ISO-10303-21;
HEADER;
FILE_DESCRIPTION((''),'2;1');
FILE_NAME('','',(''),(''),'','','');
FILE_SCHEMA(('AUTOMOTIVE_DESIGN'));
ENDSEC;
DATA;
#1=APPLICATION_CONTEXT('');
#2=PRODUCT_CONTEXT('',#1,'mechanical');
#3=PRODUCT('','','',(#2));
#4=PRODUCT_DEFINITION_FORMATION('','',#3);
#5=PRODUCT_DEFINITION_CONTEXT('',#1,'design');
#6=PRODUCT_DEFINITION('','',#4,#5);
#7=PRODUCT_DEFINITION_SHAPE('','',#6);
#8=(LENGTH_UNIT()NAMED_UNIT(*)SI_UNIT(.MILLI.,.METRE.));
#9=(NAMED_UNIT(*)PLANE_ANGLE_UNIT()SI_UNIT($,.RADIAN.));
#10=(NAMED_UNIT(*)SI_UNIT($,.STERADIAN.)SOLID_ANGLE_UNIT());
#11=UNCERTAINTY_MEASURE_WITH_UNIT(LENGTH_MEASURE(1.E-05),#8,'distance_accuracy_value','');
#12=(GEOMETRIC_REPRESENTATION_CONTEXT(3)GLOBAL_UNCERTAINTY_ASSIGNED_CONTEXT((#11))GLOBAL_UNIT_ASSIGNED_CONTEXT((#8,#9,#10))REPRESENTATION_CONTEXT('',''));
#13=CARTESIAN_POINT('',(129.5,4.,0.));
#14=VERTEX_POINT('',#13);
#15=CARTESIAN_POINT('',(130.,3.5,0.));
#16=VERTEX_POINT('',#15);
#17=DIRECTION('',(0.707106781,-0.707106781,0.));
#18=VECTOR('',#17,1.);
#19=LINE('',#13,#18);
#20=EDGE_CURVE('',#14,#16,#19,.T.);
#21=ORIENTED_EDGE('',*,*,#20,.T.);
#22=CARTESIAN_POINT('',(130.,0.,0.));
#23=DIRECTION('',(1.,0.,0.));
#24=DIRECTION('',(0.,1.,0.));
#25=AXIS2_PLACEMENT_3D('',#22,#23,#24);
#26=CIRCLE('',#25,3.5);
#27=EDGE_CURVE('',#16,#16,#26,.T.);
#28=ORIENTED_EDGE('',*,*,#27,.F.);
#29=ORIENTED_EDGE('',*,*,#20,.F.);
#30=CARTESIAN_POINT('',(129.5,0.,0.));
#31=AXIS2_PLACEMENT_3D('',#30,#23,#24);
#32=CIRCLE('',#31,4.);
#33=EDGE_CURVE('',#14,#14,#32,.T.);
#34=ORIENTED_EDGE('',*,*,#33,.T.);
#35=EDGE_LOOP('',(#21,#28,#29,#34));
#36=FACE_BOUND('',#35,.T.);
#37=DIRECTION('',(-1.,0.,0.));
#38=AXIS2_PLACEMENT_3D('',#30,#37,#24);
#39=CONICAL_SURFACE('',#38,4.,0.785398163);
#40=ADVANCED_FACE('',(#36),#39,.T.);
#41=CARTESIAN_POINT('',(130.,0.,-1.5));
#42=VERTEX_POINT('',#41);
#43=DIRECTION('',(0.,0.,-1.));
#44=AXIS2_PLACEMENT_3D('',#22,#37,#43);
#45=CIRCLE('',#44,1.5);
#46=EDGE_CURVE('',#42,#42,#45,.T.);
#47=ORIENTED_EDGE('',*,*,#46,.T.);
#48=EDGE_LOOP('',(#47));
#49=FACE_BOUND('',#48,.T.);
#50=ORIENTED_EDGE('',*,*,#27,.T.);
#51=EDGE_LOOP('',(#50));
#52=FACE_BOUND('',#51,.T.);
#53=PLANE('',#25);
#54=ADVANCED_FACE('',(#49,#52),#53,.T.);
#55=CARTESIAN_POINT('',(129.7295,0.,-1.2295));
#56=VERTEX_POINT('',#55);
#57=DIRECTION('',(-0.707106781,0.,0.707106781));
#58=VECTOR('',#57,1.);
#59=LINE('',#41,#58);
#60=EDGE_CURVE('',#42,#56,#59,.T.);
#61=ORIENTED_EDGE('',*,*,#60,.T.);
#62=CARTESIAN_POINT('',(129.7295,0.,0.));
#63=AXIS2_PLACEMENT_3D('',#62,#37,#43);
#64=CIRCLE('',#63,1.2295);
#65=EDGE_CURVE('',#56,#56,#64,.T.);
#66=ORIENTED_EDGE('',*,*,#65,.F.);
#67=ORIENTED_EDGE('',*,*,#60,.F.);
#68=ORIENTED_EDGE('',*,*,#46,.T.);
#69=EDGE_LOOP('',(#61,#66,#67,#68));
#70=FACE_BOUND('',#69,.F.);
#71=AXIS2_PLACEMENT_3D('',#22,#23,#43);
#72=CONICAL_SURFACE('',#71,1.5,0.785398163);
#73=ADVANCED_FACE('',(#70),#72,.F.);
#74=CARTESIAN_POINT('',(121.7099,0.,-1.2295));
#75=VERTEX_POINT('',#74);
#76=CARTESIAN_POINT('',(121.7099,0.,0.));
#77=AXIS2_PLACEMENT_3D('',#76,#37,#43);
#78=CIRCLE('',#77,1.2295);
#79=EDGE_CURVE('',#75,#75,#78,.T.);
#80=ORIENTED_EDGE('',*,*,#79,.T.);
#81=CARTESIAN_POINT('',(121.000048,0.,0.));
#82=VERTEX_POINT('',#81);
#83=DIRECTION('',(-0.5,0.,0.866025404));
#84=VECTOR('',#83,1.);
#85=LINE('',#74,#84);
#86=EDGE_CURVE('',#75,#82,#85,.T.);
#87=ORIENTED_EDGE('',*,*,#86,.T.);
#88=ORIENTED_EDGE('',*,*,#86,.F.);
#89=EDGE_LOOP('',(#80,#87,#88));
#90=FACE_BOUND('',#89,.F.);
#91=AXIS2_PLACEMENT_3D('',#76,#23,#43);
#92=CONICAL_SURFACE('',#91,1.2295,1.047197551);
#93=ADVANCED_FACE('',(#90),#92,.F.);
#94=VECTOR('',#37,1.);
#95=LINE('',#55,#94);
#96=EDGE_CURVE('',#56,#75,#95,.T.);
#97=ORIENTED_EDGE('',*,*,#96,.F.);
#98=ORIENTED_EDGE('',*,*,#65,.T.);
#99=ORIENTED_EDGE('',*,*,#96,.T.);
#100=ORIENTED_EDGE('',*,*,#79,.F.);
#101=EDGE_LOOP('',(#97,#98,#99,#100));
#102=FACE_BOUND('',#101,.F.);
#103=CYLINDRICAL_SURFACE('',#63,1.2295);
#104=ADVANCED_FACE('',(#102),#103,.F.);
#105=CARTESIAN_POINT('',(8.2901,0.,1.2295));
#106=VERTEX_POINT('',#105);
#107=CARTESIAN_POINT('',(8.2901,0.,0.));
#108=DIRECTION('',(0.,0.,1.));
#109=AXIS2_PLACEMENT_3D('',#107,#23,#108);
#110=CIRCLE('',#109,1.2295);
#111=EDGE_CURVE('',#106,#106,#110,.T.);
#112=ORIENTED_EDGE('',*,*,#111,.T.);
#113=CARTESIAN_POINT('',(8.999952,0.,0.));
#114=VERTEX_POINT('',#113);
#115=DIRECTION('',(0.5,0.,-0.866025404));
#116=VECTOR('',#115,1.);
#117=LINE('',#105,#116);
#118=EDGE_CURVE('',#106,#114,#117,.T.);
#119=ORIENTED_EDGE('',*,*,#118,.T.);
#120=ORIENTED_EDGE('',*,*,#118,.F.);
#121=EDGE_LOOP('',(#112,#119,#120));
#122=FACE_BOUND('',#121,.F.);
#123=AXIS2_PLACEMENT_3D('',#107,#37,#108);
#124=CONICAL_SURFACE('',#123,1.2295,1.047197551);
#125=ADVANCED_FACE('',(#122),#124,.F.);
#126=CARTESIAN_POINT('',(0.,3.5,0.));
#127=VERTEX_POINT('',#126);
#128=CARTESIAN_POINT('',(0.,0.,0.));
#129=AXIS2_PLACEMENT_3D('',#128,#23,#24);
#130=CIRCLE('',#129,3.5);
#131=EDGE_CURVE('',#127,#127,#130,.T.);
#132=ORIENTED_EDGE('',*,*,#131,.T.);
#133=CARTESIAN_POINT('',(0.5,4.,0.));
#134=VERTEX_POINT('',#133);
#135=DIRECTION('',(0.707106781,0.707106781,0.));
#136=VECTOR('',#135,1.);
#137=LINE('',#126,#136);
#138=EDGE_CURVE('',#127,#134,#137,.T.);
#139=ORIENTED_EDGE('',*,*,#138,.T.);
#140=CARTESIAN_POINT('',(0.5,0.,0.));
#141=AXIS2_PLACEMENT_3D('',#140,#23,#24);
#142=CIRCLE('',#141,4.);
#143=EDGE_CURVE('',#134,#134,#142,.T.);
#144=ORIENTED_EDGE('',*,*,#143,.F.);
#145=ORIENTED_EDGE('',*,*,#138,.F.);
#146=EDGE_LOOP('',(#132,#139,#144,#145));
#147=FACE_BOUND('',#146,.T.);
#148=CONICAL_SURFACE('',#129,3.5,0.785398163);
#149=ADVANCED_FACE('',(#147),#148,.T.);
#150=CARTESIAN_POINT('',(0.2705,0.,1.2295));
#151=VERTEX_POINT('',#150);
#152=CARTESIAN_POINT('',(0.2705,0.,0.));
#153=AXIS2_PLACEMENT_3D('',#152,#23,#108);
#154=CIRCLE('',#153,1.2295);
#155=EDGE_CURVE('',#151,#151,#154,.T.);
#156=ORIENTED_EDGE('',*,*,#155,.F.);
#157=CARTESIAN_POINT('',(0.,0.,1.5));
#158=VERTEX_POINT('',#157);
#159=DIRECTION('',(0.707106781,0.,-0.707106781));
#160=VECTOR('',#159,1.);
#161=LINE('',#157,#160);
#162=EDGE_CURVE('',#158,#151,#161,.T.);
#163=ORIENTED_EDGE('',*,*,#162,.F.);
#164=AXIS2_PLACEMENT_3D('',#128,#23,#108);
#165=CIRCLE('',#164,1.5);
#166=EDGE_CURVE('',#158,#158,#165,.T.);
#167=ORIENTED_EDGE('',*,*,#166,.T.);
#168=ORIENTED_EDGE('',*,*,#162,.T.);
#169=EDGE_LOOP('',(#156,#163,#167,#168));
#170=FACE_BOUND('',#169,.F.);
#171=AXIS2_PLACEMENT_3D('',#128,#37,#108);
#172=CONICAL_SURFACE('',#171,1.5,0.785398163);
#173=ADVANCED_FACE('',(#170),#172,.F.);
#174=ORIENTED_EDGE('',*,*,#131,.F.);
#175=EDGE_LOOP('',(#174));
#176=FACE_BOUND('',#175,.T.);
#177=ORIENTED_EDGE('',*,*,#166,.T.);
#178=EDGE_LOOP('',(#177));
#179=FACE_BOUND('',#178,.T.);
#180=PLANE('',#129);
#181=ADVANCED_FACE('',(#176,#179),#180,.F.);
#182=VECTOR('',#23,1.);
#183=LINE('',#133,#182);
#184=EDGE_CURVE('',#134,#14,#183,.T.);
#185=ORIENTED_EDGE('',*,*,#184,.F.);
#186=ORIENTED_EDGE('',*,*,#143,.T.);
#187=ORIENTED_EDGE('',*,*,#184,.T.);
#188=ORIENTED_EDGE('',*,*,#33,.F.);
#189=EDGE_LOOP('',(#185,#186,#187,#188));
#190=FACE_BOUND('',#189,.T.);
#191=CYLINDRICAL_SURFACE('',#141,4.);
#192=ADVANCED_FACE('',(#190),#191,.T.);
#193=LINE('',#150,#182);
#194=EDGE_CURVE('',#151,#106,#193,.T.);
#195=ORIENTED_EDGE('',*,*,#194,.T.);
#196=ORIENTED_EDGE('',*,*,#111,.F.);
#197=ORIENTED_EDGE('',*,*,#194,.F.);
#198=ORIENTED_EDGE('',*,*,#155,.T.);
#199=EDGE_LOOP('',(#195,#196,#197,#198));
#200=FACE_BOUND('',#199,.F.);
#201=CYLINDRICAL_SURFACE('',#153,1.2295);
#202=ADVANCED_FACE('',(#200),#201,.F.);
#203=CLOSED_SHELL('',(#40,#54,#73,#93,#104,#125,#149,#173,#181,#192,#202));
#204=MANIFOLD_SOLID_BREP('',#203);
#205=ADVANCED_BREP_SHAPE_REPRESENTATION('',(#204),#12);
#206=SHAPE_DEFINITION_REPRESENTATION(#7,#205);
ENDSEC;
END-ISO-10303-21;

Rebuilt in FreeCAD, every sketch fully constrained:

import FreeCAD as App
import Part
import Sketcher
Q = App.Units.Quantity


def add_polygon(sketch, points):
    """Adds a closed chain of lines whose ends are joined by coincident constraints."""
    first, n = sketch.GeometryCount, len(points)
    for a, b in zip(points, points[1:] + points[:1]):
        sketch.addGeometry(Part.LineSegment(App.Vector(*a, 0), App.Vector(*b, 0)), False)
    for i in range(n):
        sketch.addConstraint(Sketcher.Constraint("Coincident", first + i, 2, first + (i + 1) % n, 1))

doc = App.newDocument("Part")
params = doc.addObject("Spreadsheet::Sheet", "Params")
for row, (alias, value) in enumerate([
    ("sketch1_width", "130 mm"),
    ("sketch1_width2", "129 mm"),
    ("sketch1_height", "3.5 mm"),
    ("revolution_angle", "360 deg"),
    ("hole_diameter", "2.459 mm"),
    ("hole_depth", "8.2901 mm"),
    ("hole_csink_diameter", "3 mm"),
    ("hole2_diameter", "2.459 mm"),
    ("hole2_depth", "8.2901 mm"),
    ("hole2_csink_diameter", "3 mm"),
], start=1):
    params.set(f"A{row}", alias)
    params.set(f"B{row}", "=" + value)
    params.setAlias(f"B{row}", alias)

body = doc.addObject("PartDesign::Body", "Body")

# Sketch on XY plane
sketch1 = body.newObject("Sketcher::SketchObject", "Sketch")
sketch1.AttachmentSupport = (doc.getObject("XY_Plane"), [""])
sketch1.MapMode = "FlatFace"
add_polygon(sketch1, [(0, 0), (130, 0), (130, 3.5), (129.5, 4), (0.5, 4), (0, 3.5)])  # lines 0-5
sketch1.addConstraint(Sketcher.Constraint("Horizontal", 0))
sketch1.addConstraint(Sketcher.Constraint("Vertical", 1))
sketch1.addConstraint(Sketcher.Constraint("Horizontal", 3))
sketch1.addConstraint(Sketcher.Constraint("Vertical", 5))
sketch1.addConstraint(Sketcher.Constraint("Coincident", 5, 2, -1, 1))
sketch1.addConstraint(Sketcher.Constraint("Perpendicular", 2, 4))
sketch1.addConstraint(Sketcher.Constraint("Horizontal", 1, 2, 4, 2))
sketch1.addConstraint(Sketcher.Constraint("Equal", 2, 4))
sketch1.addConstraint(Sketcher.Constraint("DistanceX", 0, 1, 0, 2, Q("130 mm")))
sketch1.addConstraint(Sketcher.Constraint("DistanceX", 3, 2, 3, 1, Q("129 mm")))
sketch1.addConstraint(Sketcher.Constraint("DistanceY", 1, 1, 1, 2, Q("3.5 mm")))
sketch1.setExpression("Constraints[14]", "Params.sketch1_width")
sketch1.setExpression("Constraints[15]", "Params.sketch1_width2")
sketch1.setExpression("Constraints[16]", "Params.sketch1_height")
revolution = body.newObject("PartDesign::Revolution", "Revolution")
revolution.Profile = sketch1
revolution.ReferenceAxis = (sketch1, ["H_Axis"])
revolution.setExpression("Angle", "Params.revolution_angle")

# Sketch on YZ plane
sketch2 = body.newObject("Sketcher::SketchObject", "Sketch001")
sketch2.AttachmentSupport = (doc.getObject("YZ_Plane"), [""])
sketch2.MapMode = "FlatFace"
sketch2.addGeometry(Part.Circle(App.Vector(0, 0, 0), App.Vector(0, 0, 1), 1.2), False)
sketch2.addConstraint(Sketcher.Constraint("Coincident", 0, 3, -1, 1))
sketch2.addConstraint(Sketcher.Constraint("Diameter", 0, Q("2.459 mm")))
doc.recompute()
hole = body.newObject("PartDesign::Hole", "Hole")
hole.Profile = sketch2
hole.ThreadType = "None"
hole.setExpression("Diameter", "Params.hole_diameter")
hole.DepthType = "Dimension"
hole.setExpression("Depth", "Params.hole_depth")
hole.DrillPoint = "Angled"
hole.DrillPointAngle = 120
hole.HoleCutType = "Countersink"
hole.setExpression("HoleCutDiameter", "Params.hole_csink_diameter")
hole.HoleCutCountersinkAngle = 90
hole.Reversed = True

# Sketch on YZ plane
sketch3 = body.newObject("Sketcher::SketchObject", "Sketch002")
sketch3.AttachmentSupport = (doc.getObject("YZ_Plane"), [""])
sketch3.MapMode = "FlatFace"
sketch3.AttachmentOffset = App.Placement(App.Vector(0, 0, 130), App.Rotation())
sketch3.addGeometry(Part.Circle(App.Vector(0, 0, 0), App.Vector(0, 0, 1), 1.2), False)
sketch3.addConstraint(Sketcher.Constraint("Coincident", 0, 3, -1, 1))
sketch3.addConstraint(Sketcher.Constraint("Diameter", 0, Q("2.459 mm")))
doc.recompute()
hole2 = body.newObject("PartDesign::Hole", "Hole001")
hole2.Profile = sketch3
hole2.ThreadType = "None"
hole2.setExpression("Diameter", "Params.hole2_diameter")
hole2.DepthType = "Dimension"
hole2.setExpression("Depth", "Params.hole2_depth")
hole2.DrillPoint = "Angled"
hole2.DrillPointAngle = 120
hole2.HoleCutType = "Countersink"
hole2.setExpression("HoleCutDiameter", "Params.hole2_csink_diameter")
hole2.HoleCutCountersinkAngle = 90

doc.recompute()
